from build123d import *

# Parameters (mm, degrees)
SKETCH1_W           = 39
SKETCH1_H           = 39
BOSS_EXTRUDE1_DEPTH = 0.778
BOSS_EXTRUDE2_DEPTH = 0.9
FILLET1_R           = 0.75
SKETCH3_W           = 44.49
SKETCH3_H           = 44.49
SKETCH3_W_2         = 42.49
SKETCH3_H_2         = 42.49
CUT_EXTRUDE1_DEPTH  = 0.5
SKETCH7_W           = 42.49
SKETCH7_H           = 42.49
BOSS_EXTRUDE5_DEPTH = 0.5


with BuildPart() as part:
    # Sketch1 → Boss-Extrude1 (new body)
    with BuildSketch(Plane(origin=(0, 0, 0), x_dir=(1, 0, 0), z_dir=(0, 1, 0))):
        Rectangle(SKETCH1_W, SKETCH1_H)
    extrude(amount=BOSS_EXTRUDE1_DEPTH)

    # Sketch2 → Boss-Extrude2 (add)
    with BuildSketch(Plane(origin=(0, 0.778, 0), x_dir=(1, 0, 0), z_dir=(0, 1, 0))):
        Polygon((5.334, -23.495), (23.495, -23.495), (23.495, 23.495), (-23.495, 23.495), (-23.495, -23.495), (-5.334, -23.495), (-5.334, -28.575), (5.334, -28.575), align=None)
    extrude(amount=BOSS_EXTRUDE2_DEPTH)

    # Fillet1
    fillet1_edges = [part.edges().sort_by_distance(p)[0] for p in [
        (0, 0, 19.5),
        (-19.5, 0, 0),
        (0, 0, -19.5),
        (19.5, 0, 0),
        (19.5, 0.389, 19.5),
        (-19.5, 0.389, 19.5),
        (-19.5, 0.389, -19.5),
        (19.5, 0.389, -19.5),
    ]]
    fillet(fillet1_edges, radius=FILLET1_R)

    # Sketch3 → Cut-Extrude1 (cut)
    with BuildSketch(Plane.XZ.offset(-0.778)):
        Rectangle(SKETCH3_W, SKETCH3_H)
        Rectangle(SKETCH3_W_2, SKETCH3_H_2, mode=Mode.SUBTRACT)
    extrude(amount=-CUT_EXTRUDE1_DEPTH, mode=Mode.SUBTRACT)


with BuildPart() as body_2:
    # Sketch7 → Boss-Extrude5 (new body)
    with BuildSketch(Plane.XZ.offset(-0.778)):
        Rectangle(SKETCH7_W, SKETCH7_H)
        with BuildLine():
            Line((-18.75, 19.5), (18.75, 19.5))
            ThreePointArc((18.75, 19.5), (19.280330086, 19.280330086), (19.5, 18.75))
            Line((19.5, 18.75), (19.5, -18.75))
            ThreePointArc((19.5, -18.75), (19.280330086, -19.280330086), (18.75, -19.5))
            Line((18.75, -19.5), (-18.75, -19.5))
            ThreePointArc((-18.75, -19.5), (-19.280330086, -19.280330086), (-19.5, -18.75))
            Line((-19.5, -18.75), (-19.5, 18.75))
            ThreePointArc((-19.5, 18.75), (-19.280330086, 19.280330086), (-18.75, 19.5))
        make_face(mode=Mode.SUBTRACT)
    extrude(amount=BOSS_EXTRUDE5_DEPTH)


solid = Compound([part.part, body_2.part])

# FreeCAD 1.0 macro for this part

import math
import FreeCAD as App
import Part
import Sketcher

V = App.Vector
Q = App.Units.Quantity


def edges_at(feature, points):
    """Names of the edges that pass closest to the given points."""
    edges = feature.Shape.Edges
    near = lambda p: min(range(len(edges)), key=lambda i: edges[i].distToShape(Part.Vertex(*p))[0])
    return sorted({f"Edge{near(p) + 1}" for p in points})

doc = App.newDocument("Part")
body = doc.addObject("PartDesign::Body", "Body")

# Sketch on XZ plane
sketch1 = doc.addObject("Sketcher::SketchObject", "Sketch")
body.addObject(sketch1)
sketch1.AttachmentSupport = (doc.XZ_Plane, [""])
sketch1.MapMode = "FlatFace"
sketch1.addGeometry([
    Part.LineSegment(V(-20, -20, 0), V(-20, 20, 0)),
    Part.LineSegment(V(-20, 20, 0), V(20, 20, 0)),
    Part.LineSegment(V(20, 20, 0), V(20, -20, 0)),
    Part.LineSegment(V(20, -20, 0), V(-20, -20, 0)),
], False)
sketch1.addConstraint([
    Sketcher.Constraint("Coincident", 0, 2, 1, 1),
    Sketcher.Constraint("Coincident", 1, 2, 2, 1),
    Sketcher.Constraint("Coincident", 2, 2, 3, 1),
    Sketcher.Constraint("Coincident", 3, 2, 0, 1),
    Sketcher.Constraint("Vertical", 0),
    Sketcher.Constraint("Horizontal", 1),
    Sketcher.Constraint("Vertical", 2),
    Sketcher.Constraint("Horizontal", 3),
    Sketcher.Constraint("Symmetric", 0, 2, 2, 2, -1, 1),
    Sketcher.Constraint("Equal", 3, 0),
    Sketcher.Constraint("DistanceX", 1, 1, 1, 2, Q("39 mm")),
])
pad1 = doc.addObject("PartDesign::Pad", "Pad")
body.addObject(pad1)
pad1.Profile = sketch1
pad1.Length = 0.778
pad1.Reversed = True

# Sketch on XZ plane
sketch2 = doc.addObject("Sketcher::SketchObject", "Sketch001")
body.addObject(sketch2)
sketch2.AttachmentSupport = (doc.XZ_Plane, [""])
sketch2.MapMode = "FlatFace"
sketch2.AttachmentOffset = App.Placement(V(0, 0, -0.778), App.Rotation())
sketch2.addGeometry([
    Part.LineSegment(V(5, 23, 0), V(23, 23, 0)),  # 0
    Part.LineSegment(V(23, 23, 0), V(23, -23, 0)),  # 1
    Part.LineSegment(V(23, -23, 0), V(-23, -23, 0)),  # 2
    Part.LineSegment(V(-23, -23, 0), V(-23, 23, 0)),  # 3
    Part.LineSegment(V(-23, 23, 0), V(-5, 23, 0)),  # 4
    Part.LineSegment(V(-5, 23, 0), V(-5, 29, 0)),  # 5
    Part.LineSegment(V(-5, 29, 0), V(5, 29, 0)),  # 6
    Part.LineSegment(V(5, 29, 0), V(5, 23, 0)),  # 7
], False)
sketch2.addConstraint([
    Sketcher.Constraint("Coincident", 0, 2, 1, 1),
    Sketcher.Constraint("Coincident", 1, 2, 2, 1),
    Sketcher.Constraint("Coincident", 2, 2, 3, 1),
    Sketcher.Constraint("Coincident", 3, 2, 4, 1),
    Sketcher.Constraint("Coincident", 4, 2, 5, 1),
    Sketcher.Constraint("Coincident", 5, 2, 6, 1),
    Sketcher.Constraint("Coincident", 6, 2, 7, 1),
    Sketcher.Constraint("Coincident", 7, 2, 0, 1),
    Sketcher.Constraint("Horizontal", 0),
    Sketcher.Constraint("Vertical", 1),
    Sketcher.Constraint("Horizontal", 2),
    Sketcher.Constraint("Vertical", 3),
    Sketcher.Constraint("Horizontal", 4),
    Sketcher.Constraint("Vertical", 5),
    Sketcher.Constraint("Horizontal", 6),
    Sketcher.Constraint("Vertical", 7),
    Sketcher.Constraint("Symmetric", 0, 2, 2, 2, -1, 1),
    Sketcher.Constraint("Symmetric", 4, 2, 7, 2, -2),
    Sketcher.Constraint("Equal", 2, 1),
    Sketcher.Constraint("DistanceX", 2, 2, 2, 1, Q("46.99 mm")),
    Sketcher.Constraint("DistanceY", 5, 1, 5, 2, Q("5.08 mm")),
    Sketcher.Constraint("DistanceX", 0, 1, 0, 2, Q("18.161 mm")),
])
pad2 = doc.addObject("PartDesign::Pad", "Pad001")
body.addObject(pad2)
pad2.Profile = sketch2
pad2.Length = 0.9
pad2.Reversed = True
doc.recompute()

fillet = doc.addObject("PartDesign::Fillet", "Fillet")
body.addObject(fillet)
fillet.Base = (pad2, edges_at(pad2, [
    (0, 0, 19.5),
    (-19.5, 0, 0),
    (0, 0, -19.5),
    (19.5, 0, 0),
    (19.5, 0.389, 19.5),
    (-19.5, 0.389, 19.5),
    (-19.5, 0.389, -19.5),
    (19.5, 0.389, -19.5),
]))
fillet.Radius = 0.75

# Sketch on XZ plane
sketch3 = doc.addObject("Sketcher::SketchObject", "Sketch002")
body.addObject(sketch3)
sketch3.AttachmentSupport = (doc.XZ_Plane, [""])
sketch3.MapMode = "FlatFace"
sketch3.AttachmentOffset = App.Placement(V(0, 0, -0.778), App.Rotation())
sketch3.addGeometry([
    Part.LineSegment(V(-22, 22, 0), V(-22, -22, 0)),  # 0
    Part.LineSegment(V(-22, -22, 0), V(22, -22, 0)),  # 1
    Part.LineSegment(V(22, -22, 0), V(22, 22, 0)),  # 2
    Part.LineSegment(V(22, 22, 0), V(-22, 22, 0)),  # 3
    Part.LineSegment(V(21, -21, 0), V(-21, -21, 0)),  # 4
    Part.LineSegment(V(-21, -21, 0), V(-21, 21, 0)),  # 5
    Part.LineSegment(V(-21, 21, 0), V(21, 21, 0)),  # 6
    Part.LineSegment(V(21, 21, 0), V(21, -21, 0)),  # 7
], False)
sketch3.addConstraint([
    Sketcher.Constraint("Coincident", 0, 2, 1, 1),
    Sketcher.Constraint("Coincident", 1, 2, 2, 1),
    Sketcher.Constraint("Coincident", 2, 2, 3, 1),
    Sketcher.Constraint("Coincident", 3, 2, 0, 1),
    Sketcher.Constraint("Coincident", 4, 2, 5, 1),
    Sketcher.Constraint("Coincident", 5, 2, 6, 1),
    Sketcher.Constraint("Coincident", 6, 2, 7, 1),
    Sketcher.Constraint("Coincident", 7, 2, 4, 1),
    Sketcher.Constraint("Vertical", 0),
    Sketcher.Constraint("Horizontal", 1),
    Sketcher.Constraint("Vertical", 2),
    Sketcher.Constraint("Horizontal", 3),
    Sketcher.Constraint("Horizontal", 4),
    Sketcher.Constraint("Vertical", 5),
    Sketcher.Constraint("Horizontal", 6),
    Sketcher.Constraint("Vertical", 7),
    Sketcher.Constraint("Symmetric", 0, 2, 2, 2, -1, 1),
    Sketcher.Constraint("Symmetric", 4, 2, 6, 2, -1, 1),
    Sketcher.Constraint("Equal", 3, 0),
    Sketcher.Constraint("Equal", 6, 5),
    Sketcher.Constraint("DistanceX", 0, 2, 4, 2, Q("1 mm")),
    Sketcher.Constraint("DistanceX", 1, 1, 1, 2, Q("44.49 mm")),
])
pocket1 = doc.addObject("PartDesign::Pocket", "Pocket")
body.addObject(pocket1)
pocket1.Profile = sketch3
pocket1.Length = 0.5
body2 = doc.addObject("PartDesign::Body", "Body001")

# Sketch on XZ plane
sketch4 = doc.addObject("Sketcher::SketchObject", "Sketch003")
body2.addObject(sketch4)
sketch4.AttachmentSupport = (doc.getObject("XZ_Plane001"), [""])
sketch4.MapMode = "FlatFace"
sketch4.AttachmentOffset = App.Placement(V(0, 0, -0.778), App.Rotation())
sketch4.addGeometry([
    Part.LineSegment(V(-21.2, 21.2, 0), V(-21.2, -21.2, 0)),  # 0
    Part.LineSegment(V(-21.2, -21.2, 0), V(21.2, -21.2, 0)),  # 1
    Part.LineSegment(V(21.2, -21.2, 0), V(21.2, 21.2, 0)),  # 2
    Part.LineSegment(V(21.2, 21.2, 0), V(-21.2, 21.2, 0)),  # 3
    Part.ArcOfCircle(Part.Circle(V(-18.8, 18.8, 0), V(0, 0, 1), 0.8), math.radians(90), math.radians(180)),  # 4
    Part.LineSegment(V(-18.8, 19.5, 0), V(18.8, 19.5, 0)),  # 5
    Part.ArcOfCircle(Part.Circle(V(18.8, 18.8, 0), V(0, 0, 1), 0.8), math.radians(0), math.radians(90)),  # 6
    Part.LineSegment(V(19.5, 18.8, 0), V(19.5, -18.8, 0)),  # 7
    Part.ArcOfCircle(Part.Circle(V(18.8, -18.8, 0), V(0, 0, 1), 0.8), math.radians(-90), math.radians(0)),  # 8
    Part.LineSegment(V(18.8, -19.5, 0), V(-18.8, -19.5, 0)),  # 9
    Part.ArcOfCircle(Part.Circle(V(-18.8, -18.8, 0), V(0, 0, 1), 0.8), math.radians(180), math.radians(270)),  # 10
    Part.LineSegment(V(-19.5, -18.8, 0), V(-19.5, 18.8, 0)),  # 11
], False)
sketch4.addConstraint([
    Sketcher.Constraint("Coincident", 0, 2, 1, 1),
    Sketcher.Constraint("Coincident", 1, 2, 2, 1),
    Sketcher.Constraint("Coincident", 2, 2, 3, 1),
    Sketcher.Constraint("Coincident", 3, 2, 0, 1),
    Sketcher.Constraint("Tangent", 4, 1, 5, 1),
    Sketcher.Constraint("Tangent", 5, 2, 6, 2),
    Sketcher.Constraint("Tangent", 6, 1, 7, 1),
    Sketcher.Constraint("Tangent", 7, 2, 8, 2),
    Sketcher.Constraint("Tangent", 8, 1, 9, 1),
    Sketcher.Constraint("Tangent", 9, 2, 10, 2),
    Sketcher.Constraint("Tangent", 10, 1, 11, 1),
    Sketcher.Constraint("Tangent", 11, 2, 4, 2),
    Sketcher.Constraint("Vertical", 0),
    Sketcher.Constraint("Horizontal", 1),
    Sketcher.Constraint("Vertical", 2),
    Sketcher.Constraint("Horizontal", 3),
    Sketcher.Constraint("Horizontal", 5),
    Sketcher.Constraint("Vertical", 7),
    Sketcher.Constraint("Horizontal", 9),
    Sketcher.Constraint("Vertical", 11),
    Sketcher.Constraint("Equal", 4, 6),
    Sketcher.Constraint("Equal", 6, 8),
    Sketcher.Constraint("Equal", 8, 10),
    Sketcher.Constraint("Symmetric", 4, 3, 8, 3, -1, 1),
    Sketcher.Constraint("Symmetric", 0, 2, 2, 2, -1, 1),
    Sketcher.Constraint("Equal", 3, 0),
    Sketcher.Constraint("Equal", 9, 7),
    Sketcher.Constraint("Radius", 4, Q("0.75 mm")),
    Sketcher.Constraint("DistanceX", 5, 1, 5, 2, Q("37.5 mm")),
    Sketcher.Constraint("DistanceX", 1, 1, 1, 2, Q("42.49 mm")),
])
pad3 = doc.addObject("PartDesign::Pad", "Pad002")
body2.addObject(pad3)
pad3.Profile = sketch4
pad3.Length = 0.5

doc.recompute()
